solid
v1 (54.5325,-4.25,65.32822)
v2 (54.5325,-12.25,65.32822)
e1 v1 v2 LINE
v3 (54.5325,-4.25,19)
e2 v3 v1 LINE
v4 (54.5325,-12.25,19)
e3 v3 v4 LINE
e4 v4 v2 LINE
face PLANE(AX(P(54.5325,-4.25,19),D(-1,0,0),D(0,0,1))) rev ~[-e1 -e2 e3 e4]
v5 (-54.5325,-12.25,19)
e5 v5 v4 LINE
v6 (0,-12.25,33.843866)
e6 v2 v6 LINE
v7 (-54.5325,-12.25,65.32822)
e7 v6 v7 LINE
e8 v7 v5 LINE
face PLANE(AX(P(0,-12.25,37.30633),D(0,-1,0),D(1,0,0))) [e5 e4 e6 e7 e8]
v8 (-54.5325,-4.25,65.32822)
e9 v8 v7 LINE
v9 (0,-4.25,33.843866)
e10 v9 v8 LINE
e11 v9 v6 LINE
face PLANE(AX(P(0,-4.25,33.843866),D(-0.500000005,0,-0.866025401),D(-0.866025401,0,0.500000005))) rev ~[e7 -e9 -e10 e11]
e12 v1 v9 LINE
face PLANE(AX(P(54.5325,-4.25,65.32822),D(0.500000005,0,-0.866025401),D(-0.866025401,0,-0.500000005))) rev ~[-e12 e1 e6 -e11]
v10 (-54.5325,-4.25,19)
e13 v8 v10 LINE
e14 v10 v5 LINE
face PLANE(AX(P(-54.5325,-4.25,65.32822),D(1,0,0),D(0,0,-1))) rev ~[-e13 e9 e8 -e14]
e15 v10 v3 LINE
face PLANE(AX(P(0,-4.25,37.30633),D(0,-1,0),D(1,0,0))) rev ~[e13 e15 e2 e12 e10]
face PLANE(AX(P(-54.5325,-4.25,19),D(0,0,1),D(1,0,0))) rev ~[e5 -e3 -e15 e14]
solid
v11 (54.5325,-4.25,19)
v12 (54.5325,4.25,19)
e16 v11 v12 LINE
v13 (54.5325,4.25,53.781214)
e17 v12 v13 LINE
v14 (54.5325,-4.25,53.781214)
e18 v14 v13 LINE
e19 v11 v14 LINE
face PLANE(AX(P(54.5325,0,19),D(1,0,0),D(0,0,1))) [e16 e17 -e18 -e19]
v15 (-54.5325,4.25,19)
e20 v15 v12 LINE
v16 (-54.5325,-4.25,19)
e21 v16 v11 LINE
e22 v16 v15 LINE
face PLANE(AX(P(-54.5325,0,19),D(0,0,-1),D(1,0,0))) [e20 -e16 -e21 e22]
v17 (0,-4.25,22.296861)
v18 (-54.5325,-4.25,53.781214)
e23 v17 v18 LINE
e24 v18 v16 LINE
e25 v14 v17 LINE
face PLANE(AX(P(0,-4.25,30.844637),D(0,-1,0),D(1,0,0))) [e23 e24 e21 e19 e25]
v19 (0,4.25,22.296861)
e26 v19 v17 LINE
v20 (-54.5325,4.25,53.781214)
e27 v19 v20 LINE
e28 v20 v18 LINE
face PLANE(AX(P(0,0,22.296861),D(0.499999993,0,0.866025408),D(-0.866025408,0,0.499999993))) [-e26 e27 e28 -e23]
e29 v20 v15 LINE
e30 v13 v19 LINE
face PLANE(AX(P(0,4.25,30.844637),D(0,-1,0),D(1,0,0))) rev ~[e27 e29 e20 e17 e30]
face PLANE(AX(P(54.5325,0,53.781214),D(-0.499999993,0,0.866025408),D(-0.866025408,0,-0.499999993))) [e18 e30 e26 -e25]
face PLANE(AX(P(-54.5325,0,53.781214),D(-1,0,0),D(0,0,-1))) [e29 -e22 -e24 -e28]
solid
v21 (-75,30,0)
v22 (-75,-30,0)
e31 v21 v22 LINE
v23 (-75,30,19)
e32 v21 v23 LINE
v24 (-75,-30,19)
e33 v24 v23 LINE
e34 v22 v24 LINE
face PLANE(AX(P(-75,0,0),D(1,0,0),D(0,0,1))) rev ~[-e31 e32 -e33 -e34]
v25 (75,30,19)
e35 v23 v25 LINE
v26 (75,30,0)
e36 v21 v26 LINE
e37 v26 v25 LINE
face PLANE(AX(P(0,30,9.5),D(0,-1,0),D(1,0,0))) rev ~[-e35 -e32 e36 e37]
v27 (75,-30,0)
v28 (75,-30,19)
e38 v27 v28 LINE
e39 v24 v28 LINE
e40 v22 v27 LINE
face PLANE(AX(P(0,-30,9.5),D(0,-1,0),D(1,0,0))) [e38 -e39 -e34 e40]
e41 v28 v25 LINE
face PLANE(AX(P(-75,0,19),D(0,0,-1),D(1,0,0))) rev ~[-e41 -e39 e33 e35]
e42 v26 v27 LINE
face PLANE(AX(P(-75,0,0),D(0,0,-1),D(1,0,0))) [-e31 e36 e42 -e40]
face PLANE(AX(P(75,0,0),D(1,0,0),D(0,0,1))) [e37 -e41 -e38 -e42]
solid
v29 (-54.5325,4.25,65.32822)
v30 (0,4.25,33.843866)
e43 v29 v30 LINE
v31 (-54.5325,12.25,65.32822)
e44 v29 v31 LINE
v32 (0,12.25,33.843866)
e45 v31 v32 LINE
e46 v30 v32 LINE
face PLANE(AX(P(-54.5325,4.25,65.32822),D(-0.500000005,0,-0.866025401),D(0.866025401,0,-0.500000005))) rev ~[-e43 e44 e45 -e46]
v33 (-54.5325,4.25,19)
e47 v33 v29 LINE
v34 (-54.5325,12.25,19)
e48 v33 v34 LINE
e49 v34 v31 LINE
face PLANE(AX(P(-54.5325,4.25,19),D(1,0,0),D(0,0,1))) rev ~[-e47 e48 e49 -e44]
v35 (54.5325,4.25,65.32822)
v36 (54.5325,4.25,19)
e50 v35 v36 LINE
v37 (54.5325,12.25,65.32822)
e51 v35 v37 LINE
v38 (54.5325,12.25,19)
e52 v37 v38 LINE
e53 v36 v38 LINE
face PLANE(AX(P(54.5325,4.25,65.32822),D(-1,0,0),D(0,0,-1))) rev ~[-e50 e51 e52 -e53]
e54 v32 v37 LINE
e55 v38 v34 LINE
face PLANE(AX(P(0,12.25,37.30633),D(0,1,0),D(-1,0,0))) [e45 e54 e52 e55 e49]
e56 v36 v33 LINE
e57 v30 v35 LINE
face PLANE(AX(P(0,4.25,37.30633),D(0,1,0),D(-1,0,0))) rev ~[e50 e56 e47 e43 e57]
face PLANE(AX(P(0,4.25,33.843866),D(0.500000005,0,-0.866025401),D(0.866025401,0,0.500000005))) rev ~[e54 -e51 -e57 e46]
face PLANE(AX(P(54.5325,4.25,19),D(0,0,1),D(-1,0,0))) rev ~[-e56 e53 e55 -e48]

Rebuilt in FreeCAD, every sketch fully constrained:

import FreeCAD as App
import Part
import Sketcher

V = App.Vector
Q = App.Units.Quantity

doc = App.newDocument("Part")
body = doc.addObject("PartDesign::Body", "Body")

# Sketch on XZ plane
sketch1 = body.newObject("Sketcher::SketchObject", "Sketch")
sketch1.AttachmentSupport = (doc.getObject("XZ_Plane"), [""])
sketch1.MapMode = "FlatFace"
sketch1.addGeometry([
    Part.LineSegment(V(-75, 19, 0), V(-75, 0, 0)),
    Part.LineSegment(V(-75, 0, 0), V(75, 0, 0)),
    Part.LineSegment(V(75, 0, 0), V(75, 19, 0)),
    Part.LineSegment(V(75, 19, 0), V(-75, 19, 0)),
], False)
sketch1.addConstraint([
    Sketcher.Constraint("Coincident", 0, 2, 1, 1),
    Sketcher.Constraint("Coincident", 1, 2, 2, 1),
    Sketcher.Constraint("Coincident", 2, 2, 3, 1),
    Sketcher.Constraint("Coincident", 3, 2, 0, 1),
    Sketcher.Constraint("Vertical", 0),
    Sketcher.Constraint("Horizontal", 1),
    Sketcher.Constraint("Vertical", 2),
    Sketcher.Constraint("Horizontal", 3),
    Sketcher.Constraint("Symmetric", 0, 2, 1, 2, -1, 1),
    Sketcher.Constraint("DistanceX", 1, 1, 1, 2, Q("150 mm")),
    Sketcher.Constraint("DistanceY", 0, 2, 0, 1, Q("19 mm")),
])
pad1 = body.newObject("PartDesign::Pad", "Pad")
pad1.Profile = sketch1
pad1.Length = 60
pad1.Midplane = True
body2 = doc.addObject("PartDesign::Body", "Body001")

# Sketch on XZ plane
sketch2 = body2.newObject("Sketcher::SketchObject", "Sketch001")
sketch2.AttachmentSupport = (doc.getObject("XZ_Plane001"), [""])
sketch2.MapMode = "FlatFace"
sketch2.addGeometry([
    Part.LineSegment(V(55, 54, 0), V(0, 22, 0)),  # 0
    Part.LineSegment(V(0, 22, 0), V(-55, 54, 0)),  # 1
    Part.LineSegment(V(-55, 54, 0), V(-55, 19, 0)),  # 2
    Part.LineSegment(V(-55, 19, 0), V(55, 19, 0)),  # 3
    Part.LineSegment(V(55, 19, 0), V(55, 54, 0)),  # 4
], False)
sketch2.addConstraint([
    Sketcher.Constraint("Coincident", 0, 2, 1, 1),
    Sketcher.Constraint("Coincident", 1, 2, 2, 1),
    Sketcher.Constraint("Coincident", 2, 2, 3, 1),
    Sketcher.Constraint("Coincident", 3, 2, 4, 1),
    Sketcher.Constraint("Coincident", 4, 2, 0, 1),
    Sketcher.Constraint("Vertical", 2),
    Sketcher.Constraint("Horizontal", 3),
    Sketcher.Constraint("Vertical", 4),
    Sketcher.Constraint("Symmetric", 1, 2, 4, 2, -2),
    Sketcher.Constraint("PointOnObject", 0, 2, -2),
    Sketcher.Constraint("Angle", 0, Q("-150 deg")),
    Sketcher.Constraint("DistanceY", -1, 1, 2, 2, Q("19 mm")),
    Sketcher.Constraint("DistanceX", 3, 1, 3, 2, Q("109.065 mm")),
    Sketcher.Constraint("DistanceY", 2, 2, 2, 1, Q("34.781214 mm")),
])
pad2 = body2.newObject("PartDesign::Pad", "Pad001")
pad2.Profile = sketch2
pad2.Length = 8.5
pad2.Midplane = True
body3 = doc.addObject("PartDesign::Body", "Body002")

# Sketch on XZ plane
sketch3 = body3.newObject("Sketcher::SketchObject", "Sketch002")
sketch3.AttachmentSupport = (doc.getObject("XZ_Plane002"), [""])
sketch3.MapMode = "FlatFace"
sketch3.AttachmentOffset = App.Placement(V(0, 0, 4.25), App.Rotation())
sketch3.addGeometry([
    Part.LineSegment(V(55, 65, 0), V(0, 34, 0)),  # 0
    Part.LineSegment(V(0, 34, 0), V(-55, 65, 0)),  # 1
    Part.LineSegment(V(-55, 65, 0), V(-55, 19, 0)),  # 2
    Part.LineSegment(V(-55, 19, 0), V(55, 19, 0)),  # 3
    Part.LineSegment(V(55, 19, 0), V(55, 65, 0)),  # 4
], False)
sketch3.addConstraint([
    Sketcher.Constraint("Coincident", 0, 2, 1, 1),
    Sketcher.Constraint("Coincident", 1, 2, 2, 1),
    Sketcher.Constraint("Coincident", 2, 2, 3, 1),
    Sketcher.Constraint("Coincident", 3, 2, 4, 1),
    Sketcher.Constraint("Coincident", 4, 2, 0, 1),
    Sketcher.Constraint("Vertical", 2),
    Sketcher.Constraint("Horizontal", 3),
    Sketcher.Constraint("Vertical", 4),
    Sketcher.Constraint("Symmetric", 1, 2, 4, 2, -2),
    Sketcher.Constraint("PointOnObject", 0, 2, -2),
    Sketcher.Constraint("Angle", 0, Q("-150 deg")),
    Sketcher.Constraint("DistanceY", -1, 1, 2, 2, Q("19 mm")),
    Sketcher.Constraint("DistanceX", 3, 1, 3, 2, Q("109.065 mm")),
    Sketcher.Constraint("DistanceY", 2, 2, 2, 1, Q("46.32822 mm")),
])
pad3 = body3.newObject("PartDesign::Pad", "Pad002")
pad3.Profile = sketch3
pad3.Length = 8
body4 = doc.addObject("PartDesign::Body", "Body003")

# Sketch on XZ plane
sketch4 = body4.newObject("Sketcher::SketchObject", "Sketch003")
sketch4.AttachmentSupport = (doc.getObject("XZ_Plane003"), [""])
sketch4.MapMode = "FlatFace"
sketch4.AttachmentOffset = App.Placement(V(0, 0, -4.25), App.Rotation())
sketch4.addGeometry([
    Part.LineSegment(V(-55, 19, 0), V(-55, 65, 0)),  # 0
    Part.LineSegment(V(-55, 65, 0), V(0, 34, 0)),  # 1
    Part.LineSegment(V(0, 34, 0), V(55, 65, 0)),  # 2
    Part.LineSegment(V(55, 65, 0), V(55, 19, 0)),  # 3
    Part.LineSegment(V(55, 19, 0), V(-55, 19, 0)),  # 4
], False)
sketch4.addConstraint([
    Sketcher.Constraint("Coincident", 0, 2, 1, 1),
    Sketcher.Constraint("Coincident", 1, 2, 2, 1),
    Sketcher.Constraint("Coincident", 2, 2, 3, 1),
    Sketcher.Constraint("Coincident", 3, 2, 4, 1),
    Sketcher.Constraint("Coincident", 4, 2, 0, 1),
    Sketcher.Constraint("Vertical", 0),
    Sketcher.Constraint("Vertical", 3),
    Sketcher.Constraint("Horizontal", 4),
    Sketcher.Constraint("Symmetric", 0, 2, 2, 2, -2),
    Sketcher.Constraint("PointOnObject", 1, 2, -2),
    Sketcher.Constraint("Angle", 1, Q("-30 deg")),
    Sketcher.Constraint("DistanceY", -1, 1, 3, 2, Q("19 mm")),
    Sketcher.Constraint("DistanceX", 4, 2, 4, 1, Q("109.065 mm")),
    Sketcher.Constraint("DistanceY", 0, 1, 0, 2, Q("46.32822 mm")),
])
pad4 = body4.newObject("PartDesign::Pad", "Pad003")
pad4.Profile = sketch4
pad4.Length = 8
pad4.Reversed = True

doc.recompute()
